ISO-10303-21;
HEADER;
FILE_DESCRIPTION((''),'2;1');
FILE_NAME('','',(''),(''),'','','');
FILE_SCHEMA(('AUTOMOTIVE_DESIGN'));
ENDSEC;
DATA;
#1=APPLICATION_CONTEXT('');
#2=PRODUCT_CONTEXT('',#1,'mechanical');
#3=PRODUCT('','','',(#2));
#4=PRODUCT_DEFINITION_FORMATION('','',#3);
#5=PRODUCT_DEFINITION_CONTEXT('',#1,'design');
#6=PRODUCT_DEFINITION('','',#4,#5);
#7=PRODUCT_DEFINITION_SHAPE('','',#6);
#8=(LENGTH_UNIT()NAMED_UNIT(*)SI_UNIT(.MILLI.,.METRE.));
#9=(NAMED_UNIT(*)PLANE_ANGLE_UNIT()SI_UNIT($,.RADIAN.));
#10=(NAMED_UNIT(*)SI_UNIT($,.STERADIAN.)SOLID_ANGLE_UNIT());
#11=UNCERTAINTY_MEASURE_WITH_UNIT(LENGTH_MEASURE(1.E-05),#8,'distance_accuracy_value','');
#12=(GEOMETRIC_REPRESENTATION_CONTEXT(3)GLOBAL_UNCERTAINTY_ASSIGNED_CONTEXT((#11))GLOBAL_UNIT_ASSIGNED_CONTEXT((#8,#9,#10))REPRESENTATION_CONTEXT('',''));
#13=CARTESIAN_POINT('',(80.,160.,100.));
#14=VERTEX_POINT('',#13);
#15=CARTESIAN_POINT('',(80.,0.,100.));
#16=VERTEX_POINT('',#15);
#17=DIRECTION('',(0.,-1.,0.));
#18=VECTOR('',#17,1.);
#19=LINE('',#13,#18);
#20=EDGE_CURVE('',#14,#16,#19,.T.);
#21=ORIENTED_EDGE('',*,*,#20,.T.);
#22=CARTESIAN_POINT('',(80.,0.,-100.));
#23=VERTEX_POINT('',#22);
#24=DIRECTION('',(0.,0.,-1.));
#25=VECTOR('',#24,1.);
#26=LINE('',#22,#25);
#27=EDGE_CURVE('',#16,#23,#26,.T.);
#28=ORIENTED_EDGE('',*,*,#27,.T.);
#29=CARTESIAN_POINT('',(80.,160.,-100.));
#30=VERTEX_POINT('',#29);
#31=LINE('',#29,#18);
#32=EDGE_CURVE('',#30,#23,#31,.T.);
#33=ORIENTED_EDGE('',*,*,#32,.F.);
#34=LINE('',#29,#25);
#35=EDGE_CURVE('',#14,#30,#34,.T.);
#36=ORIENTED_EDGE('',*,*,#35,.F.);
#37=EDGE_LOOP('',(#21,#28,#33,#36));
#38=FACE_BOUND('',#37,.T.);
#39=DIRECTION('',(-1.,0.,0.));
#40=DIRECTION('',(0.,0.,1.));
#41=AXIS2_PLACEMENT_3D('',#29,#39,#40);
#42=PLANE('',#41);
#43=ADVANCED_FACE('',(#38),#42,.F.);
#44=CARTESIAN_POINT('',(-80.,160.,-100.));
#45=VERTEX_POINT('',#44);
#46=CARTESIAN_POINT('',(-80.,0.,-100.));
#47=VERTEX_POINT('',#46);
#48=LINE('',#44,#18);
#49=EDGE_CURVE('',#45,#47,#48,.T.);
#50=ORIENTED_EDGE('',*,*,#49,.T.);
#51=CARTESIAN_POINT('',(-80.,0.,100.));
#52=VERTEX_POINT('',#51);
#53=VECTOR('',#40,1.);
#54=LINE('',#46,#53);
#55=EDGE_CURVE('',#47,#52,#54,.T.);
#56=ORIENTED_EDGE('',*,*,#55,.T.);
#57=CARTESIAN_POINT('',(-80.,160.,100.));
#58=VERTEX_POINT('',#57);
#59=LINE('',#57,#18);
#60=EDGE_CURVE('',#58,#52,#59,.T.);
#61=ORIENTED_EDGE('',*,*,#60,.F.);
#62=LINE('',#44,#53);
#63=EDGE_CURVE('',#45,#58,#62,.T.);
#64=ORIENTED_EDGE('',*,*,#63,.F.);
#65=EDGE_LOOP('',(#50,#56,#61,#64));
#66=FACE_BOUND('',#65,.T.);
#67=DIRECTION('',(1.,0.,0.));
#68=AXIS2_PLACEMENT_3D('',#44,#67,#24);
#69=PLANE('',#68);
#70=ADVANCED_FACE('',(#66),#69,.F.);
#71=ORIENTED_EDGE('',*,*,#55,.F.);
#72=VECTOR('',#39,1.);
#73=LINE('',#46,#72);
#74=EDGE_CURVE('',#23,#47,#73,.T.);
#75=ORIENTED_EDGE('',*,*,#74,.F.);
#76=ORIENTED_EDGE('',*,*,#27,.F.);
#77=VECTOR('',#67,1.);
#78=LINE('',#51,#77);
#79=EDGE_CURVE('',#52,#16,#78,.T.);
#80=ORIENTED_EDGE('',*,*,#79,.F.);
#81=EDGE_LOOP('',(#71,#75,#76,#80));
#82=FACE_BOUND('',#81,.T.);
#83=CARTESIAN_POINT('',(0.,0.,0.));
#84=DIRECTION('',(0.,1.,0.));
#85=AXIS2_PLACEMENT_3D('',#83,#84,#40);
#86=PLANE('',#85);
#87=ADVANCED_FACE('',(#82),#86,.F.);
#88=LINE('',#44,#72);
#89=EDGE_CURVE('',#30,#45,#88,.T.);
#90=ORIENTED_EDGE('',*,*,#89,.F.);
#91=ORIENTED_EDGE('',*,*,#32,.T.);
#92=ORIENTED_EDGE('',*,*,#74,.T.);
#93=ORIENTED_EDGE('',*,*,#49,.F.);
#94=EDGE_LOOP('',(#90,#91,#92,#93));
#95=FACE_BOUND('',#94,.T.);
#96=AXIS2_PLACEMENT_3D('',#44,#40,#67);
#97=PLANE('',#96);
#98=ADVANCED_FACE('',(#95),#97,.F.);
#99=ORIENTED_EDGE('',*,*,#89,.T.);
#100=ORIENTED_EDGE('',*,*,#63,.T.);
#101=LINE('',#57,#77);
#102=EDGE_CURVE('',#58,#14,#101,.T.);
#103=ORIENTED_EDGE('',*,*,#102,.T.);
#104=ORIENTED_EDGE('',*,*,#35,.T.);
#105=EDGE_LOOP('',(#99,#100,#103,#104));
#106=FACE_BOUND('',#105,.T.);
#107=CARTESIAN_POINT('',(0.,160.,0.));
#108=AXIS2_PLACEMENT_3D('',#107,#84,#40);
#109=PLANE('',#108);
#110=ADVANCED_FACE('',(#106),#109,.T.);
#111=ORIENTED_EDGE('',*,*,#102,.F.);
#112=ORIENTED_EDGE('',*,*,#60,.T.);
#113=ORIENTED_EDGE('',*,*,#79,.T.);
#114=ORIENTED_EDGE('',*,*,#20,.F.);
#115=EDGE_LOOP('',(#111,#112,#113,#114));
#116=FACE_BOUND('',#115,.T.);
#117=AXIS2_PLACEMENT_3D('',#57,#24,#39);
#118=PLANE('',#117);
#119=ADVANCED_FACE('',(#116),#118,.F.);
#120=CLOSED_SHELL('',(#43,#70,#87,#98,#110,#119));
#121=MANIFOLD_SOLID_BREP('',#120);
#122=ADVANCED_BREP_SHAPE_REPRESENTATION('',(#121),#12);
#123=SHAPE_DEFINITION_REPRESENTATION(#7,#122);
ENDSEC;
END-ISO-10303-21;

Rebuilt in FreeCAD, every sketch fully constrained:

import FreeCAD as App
import Part
import Sketcher

doc = App.newDocument("Part")
body = doc.addObject("PartDesign::Body", "Body")

# Sketch on XZ plane
sketch1 = body.newObject("Sketcher::SketchObject", "Sketch")
sketch1.AttachmentSupport = (doc.getObject("XZ_Plane"), [""])
sketch1.MapMode = "FlatFace"
sketch1.addGeometry([
    Part.LineSegment(App.Vector(-80, -100, 0), App.Vector(-80, 100, 0)),
    Part.LineSegment(App.Vector(-80, 100, 0), App.Vector(80, 100, 0)),
    Part.LineSegment(App.Vector(80, 100, 0), App.Vector(80, -100, 0)),
    Part.LineSegment(App.Vector(80, -100, 0), App.Vector(-80, -100, 0)),
], False)
sketch1.addConstraint([
    Sketcher.Constraint("Coincident", 0, 2, 1, 1),
    Sketcher.Constraint("Coincident", 1, 2, 2, 1),
    Sketcher.Constraint("Coincident", 2, 2, 3, 1),
    Sketcher.Constraint("Coincident", 3, 2, 0, 1),
    Sketcher.Constraint("Vertical", 0),
    Sketcher.Constraint("Horizontal", 1),
    Sketcher.Constraint("Vertical", 2),
    Sketcher.Constraint("Horizontal", 3),
    Sketcher.Constraint("Symmetric", 0, 2, 2, 2, -1, 1),
    Sketcher.Constraint("DistanceX", 1, 1, 1, 2, 160.0),
    Sketcher.Constraint("DistanceY", 0, 1, 0, 2, 200.0),
])
pad1 = body.newObject("PartDesign::Pad", "Pad")
pad1.Profile = sketch1
pad1.Length = 160
pad1.Reversed = True

doc.recompute()
